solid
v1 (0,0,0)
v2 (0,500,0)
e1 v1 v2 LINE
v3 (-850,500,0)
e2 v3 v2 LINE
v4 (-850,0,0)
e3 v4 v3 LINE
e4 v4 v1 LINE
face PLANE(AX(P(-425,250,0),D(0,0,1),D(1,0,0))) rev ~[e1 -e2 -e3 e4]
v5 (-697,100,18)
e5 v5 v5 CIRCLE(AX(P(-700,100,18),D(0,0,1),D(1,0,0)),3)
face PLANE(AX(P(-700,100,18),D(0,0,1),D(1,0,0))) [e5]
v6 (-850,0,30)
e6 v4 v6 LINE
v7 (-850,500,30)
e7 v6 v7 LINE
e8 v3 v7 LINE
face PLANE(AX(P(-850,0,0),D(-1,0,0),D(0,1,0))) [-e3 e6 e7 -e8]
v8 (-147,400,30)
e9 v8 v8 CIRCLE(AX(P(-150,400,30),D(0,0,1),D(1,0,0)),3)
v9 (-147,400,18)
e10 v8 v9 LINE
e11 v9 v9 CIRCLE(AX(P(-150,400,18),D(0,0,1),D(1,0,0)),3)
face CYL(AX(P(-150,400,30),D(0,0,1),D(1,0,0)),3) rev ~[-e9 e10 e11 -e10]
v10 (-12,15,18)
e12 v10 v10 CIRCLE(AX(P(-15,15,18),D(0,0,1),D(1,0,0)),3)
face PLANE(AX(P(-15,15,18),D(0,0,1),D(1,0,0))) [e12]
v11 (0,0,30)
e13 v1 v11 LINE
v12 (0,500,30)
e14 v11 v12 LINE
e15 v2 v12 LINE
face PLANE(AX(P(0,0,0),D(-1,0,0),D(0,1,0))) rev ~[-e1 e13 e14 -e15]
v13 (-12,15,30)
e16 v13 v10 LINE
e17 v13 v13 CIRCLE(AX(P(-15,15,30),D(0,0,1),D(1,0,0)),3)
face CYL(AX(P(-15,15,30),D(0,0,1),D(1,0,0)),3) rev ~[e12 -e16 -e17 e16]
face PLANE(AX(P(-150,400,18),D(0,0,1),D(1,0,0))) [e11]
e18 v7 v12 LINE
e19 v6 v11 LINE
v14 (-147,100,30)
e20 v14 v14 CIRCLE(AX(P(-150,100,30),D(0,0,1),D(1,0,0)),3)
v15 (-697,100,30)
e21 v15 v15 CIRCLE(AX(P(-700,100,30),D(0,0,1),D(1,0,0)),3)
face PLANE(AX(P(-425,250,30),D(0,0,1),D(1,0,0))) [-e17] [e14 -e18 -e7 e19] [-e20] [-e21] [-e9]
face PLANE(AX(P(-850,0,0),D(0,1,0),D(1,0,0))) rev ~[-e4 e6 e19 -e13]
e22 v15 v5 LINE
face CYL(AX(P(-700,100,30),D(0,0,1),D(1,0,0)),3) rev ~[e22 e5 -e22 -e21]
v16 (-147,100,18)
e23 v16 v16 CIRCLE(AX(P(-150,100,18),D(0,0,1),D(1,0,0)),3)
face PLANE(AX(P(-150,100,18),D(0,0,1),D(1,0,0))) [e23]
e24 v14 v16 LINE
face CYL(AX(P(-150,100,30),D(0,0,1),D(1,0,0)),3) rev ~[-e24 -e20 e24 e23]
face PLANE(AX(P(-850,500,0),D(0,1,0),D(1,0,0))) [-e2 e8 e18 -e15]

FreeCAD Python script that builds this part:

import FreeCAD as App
import Part
import Sketcher
from FreeCAD import Vector

doc = App.newDocument("Part")
body = doc.addObject("PartDesign::Body", "Body")

# Sketch on XY plane
sketch1 = body.newObject("Sketcher::SketchObject", "Sketch")
sketch1.AttachmentSupport = (doc.getObject("XY_Plane"), [""])
sketch1.MapMode = "FlatFace"
sketch1.addGeometry([
    Part.LineSegment(Vector(-850, 500, 0), Vector(-850, 0, 0)),
    Part.LineSegment(Vector(-850, 0, 0), Vector(0, 0, 0)),
    Part.LineSegment(Vector(0, 0, 0), Vector(0, 500, 0)),
    Part.LineSegment(Vector(0, 500, 0), Vector(-850, 500, 0)),
], False)
sketch1.addConstraint([
    Sketcher.Constraint("Coincident", 0, 2, 1, 1),
    Sketcher.Constraint("Coincident", 1, 2, 2, 1),
    Sketcher.Constraint("Coincident", 2, 2, 3, 1),
    Sketcher.Constraint("Coincident", 3, 2, 0, 1),
    Sketcher.Constraint("Vertical", 0),
    Sketcher.Constraint("Horizontal", 1),
    Sketcher.Constraint("Vertical", 2),
    Sketcher.Constraint("Horizontal", 3),
    Sketcher.Constraint("Coincident", 1, 2, -1, 1),
    Sketcher.Constraint("DistanceX", 1, 1, 1, 2, 850.0),
    Sketcher.Constraint("DistanceY", 0, 2, 0, 1, 500.0),
])
pad1 = body.newObject("PartDesign::Pad", "Pad")
pad1.Profile = sketch1
pad1.Length = 30

# Sketch on XY plane
sketch2 = body.newObject("Sketcher::SketchObject", "Sketch001")
sketch2.AttachmentSupport = (doc.getObject("XY_Plane"), [""])
sketch2.MapMode = "FlatFace"
sketch2.AttachmentOffset = App.Placement(Vector(0, 0, 30), App.Rotation())
sketch2.addGeometry(Part.Circle(Vector(-150, 100, 0), Vector(0, 0, 1), 3), False)
sketch2.addConstraint([
    Sketcher.Constraint("Diameter", 0, 6.0),
    Sketcher.Constraint("DistanceX", 0, 3, -1, 1, 150.0),
    Sketcher.Constraint("DistanceY", -1, 1, 0, 3, 100.0),
])
pocket1 = body.newObject("PartDesign::Pocket", "Pocket")
pocket1.Profile = sketch2
pocket1.Length = 12

# Sketch on XY plane
sketch3 = body.newObject("Sketcher::SketchObject", "Sketch002")
sketch3.AttachmentSupport = (doc.getObject("XY_Plane"), [""])
sketch3.MapMode = "FlatFace"
sketch3.AttachmentOffset = App.Placement(Vector(0, 0, 30), App.Rotation())
sketch3.addGeometry(Part.Circle(Vector(-150, 400, 0), Vector(0, 0, 1), 3), False)
sketch3.addConstraint([
    Sketcher.Constraint("Diameter", 0, 6.0),
    Sketcher.Constraint("DistanceX", 0, 3, -1, 1, 150.0),
    Sketcher.Constraint("DistanceY", -1, 1, 0, 3, 400.0),
])
pocket2 = body.newObject("PartDesign::Pocket", "Pocket001")
pocket2.Profile = sketch3
pocket2.Length = 12

# Sketch on XY plane
sketch4 = body.newObject("Sketcher::SketchObject", "Sketch003")
sketch4.AttachmentSupport = (doc.getObject("XY_Plane"), [""])
sketch4.MapMode = "FlatFace"
sketch4.AttachmentOffset = App.Placement(Vector(0, 0, 30), App.Rotation())
sketch4.addGeometry(Part.Circle(Vector(-700, 100, 0), Vector(0, 0, 1), 3), False)
sketch4.addConstraint([
    Sketcher.Constraint("Diameter", 0, 6.0),
    Sketcher.Constraint("DistanceX", 0, 3, -1, 1, 700.0),
    Sketcher.Constraint("DistanceY", -1, 1, 0, 3, 100.0),
])
pocket3 = body.newObject("PartDesign::Pocket", "Pocket002")
pocket3.Profile = sketch4
pocket3.Length = 12

# Sketch on XY plane
sketch5 = body.newObject("Sketcher::SketchObject", "Sketch004")
sketch5.AttachmentSupport = (doc.getObject("XY_Plane"), [""])
sketch5.MapMode = "FlatFace"
sketch5.AttachmentOffset = App.Placement(Vector(0, 0, 30), App.Rotation())
sketch5.addGeometry(Part.Circle(Vector(-15, 15, 0), Vector(0, 0, 1), 3), False)
sketch5.addConstraint([
    Sketcher.Constraint("Diameter", 0, 6.0),
    Sketcher.Constraint("DistanceX", 0, 3, -1, 1, 15.0),
    Sketcher.Constraint("DistanceY", -1, 1, 0, 3, 15.0),
])
pocket4 = body.newObject("PartDesign::Pocket", "Pocket003")
pocket4.Profile = sketch5
pocket4.Length = 12

doc.recompute()
